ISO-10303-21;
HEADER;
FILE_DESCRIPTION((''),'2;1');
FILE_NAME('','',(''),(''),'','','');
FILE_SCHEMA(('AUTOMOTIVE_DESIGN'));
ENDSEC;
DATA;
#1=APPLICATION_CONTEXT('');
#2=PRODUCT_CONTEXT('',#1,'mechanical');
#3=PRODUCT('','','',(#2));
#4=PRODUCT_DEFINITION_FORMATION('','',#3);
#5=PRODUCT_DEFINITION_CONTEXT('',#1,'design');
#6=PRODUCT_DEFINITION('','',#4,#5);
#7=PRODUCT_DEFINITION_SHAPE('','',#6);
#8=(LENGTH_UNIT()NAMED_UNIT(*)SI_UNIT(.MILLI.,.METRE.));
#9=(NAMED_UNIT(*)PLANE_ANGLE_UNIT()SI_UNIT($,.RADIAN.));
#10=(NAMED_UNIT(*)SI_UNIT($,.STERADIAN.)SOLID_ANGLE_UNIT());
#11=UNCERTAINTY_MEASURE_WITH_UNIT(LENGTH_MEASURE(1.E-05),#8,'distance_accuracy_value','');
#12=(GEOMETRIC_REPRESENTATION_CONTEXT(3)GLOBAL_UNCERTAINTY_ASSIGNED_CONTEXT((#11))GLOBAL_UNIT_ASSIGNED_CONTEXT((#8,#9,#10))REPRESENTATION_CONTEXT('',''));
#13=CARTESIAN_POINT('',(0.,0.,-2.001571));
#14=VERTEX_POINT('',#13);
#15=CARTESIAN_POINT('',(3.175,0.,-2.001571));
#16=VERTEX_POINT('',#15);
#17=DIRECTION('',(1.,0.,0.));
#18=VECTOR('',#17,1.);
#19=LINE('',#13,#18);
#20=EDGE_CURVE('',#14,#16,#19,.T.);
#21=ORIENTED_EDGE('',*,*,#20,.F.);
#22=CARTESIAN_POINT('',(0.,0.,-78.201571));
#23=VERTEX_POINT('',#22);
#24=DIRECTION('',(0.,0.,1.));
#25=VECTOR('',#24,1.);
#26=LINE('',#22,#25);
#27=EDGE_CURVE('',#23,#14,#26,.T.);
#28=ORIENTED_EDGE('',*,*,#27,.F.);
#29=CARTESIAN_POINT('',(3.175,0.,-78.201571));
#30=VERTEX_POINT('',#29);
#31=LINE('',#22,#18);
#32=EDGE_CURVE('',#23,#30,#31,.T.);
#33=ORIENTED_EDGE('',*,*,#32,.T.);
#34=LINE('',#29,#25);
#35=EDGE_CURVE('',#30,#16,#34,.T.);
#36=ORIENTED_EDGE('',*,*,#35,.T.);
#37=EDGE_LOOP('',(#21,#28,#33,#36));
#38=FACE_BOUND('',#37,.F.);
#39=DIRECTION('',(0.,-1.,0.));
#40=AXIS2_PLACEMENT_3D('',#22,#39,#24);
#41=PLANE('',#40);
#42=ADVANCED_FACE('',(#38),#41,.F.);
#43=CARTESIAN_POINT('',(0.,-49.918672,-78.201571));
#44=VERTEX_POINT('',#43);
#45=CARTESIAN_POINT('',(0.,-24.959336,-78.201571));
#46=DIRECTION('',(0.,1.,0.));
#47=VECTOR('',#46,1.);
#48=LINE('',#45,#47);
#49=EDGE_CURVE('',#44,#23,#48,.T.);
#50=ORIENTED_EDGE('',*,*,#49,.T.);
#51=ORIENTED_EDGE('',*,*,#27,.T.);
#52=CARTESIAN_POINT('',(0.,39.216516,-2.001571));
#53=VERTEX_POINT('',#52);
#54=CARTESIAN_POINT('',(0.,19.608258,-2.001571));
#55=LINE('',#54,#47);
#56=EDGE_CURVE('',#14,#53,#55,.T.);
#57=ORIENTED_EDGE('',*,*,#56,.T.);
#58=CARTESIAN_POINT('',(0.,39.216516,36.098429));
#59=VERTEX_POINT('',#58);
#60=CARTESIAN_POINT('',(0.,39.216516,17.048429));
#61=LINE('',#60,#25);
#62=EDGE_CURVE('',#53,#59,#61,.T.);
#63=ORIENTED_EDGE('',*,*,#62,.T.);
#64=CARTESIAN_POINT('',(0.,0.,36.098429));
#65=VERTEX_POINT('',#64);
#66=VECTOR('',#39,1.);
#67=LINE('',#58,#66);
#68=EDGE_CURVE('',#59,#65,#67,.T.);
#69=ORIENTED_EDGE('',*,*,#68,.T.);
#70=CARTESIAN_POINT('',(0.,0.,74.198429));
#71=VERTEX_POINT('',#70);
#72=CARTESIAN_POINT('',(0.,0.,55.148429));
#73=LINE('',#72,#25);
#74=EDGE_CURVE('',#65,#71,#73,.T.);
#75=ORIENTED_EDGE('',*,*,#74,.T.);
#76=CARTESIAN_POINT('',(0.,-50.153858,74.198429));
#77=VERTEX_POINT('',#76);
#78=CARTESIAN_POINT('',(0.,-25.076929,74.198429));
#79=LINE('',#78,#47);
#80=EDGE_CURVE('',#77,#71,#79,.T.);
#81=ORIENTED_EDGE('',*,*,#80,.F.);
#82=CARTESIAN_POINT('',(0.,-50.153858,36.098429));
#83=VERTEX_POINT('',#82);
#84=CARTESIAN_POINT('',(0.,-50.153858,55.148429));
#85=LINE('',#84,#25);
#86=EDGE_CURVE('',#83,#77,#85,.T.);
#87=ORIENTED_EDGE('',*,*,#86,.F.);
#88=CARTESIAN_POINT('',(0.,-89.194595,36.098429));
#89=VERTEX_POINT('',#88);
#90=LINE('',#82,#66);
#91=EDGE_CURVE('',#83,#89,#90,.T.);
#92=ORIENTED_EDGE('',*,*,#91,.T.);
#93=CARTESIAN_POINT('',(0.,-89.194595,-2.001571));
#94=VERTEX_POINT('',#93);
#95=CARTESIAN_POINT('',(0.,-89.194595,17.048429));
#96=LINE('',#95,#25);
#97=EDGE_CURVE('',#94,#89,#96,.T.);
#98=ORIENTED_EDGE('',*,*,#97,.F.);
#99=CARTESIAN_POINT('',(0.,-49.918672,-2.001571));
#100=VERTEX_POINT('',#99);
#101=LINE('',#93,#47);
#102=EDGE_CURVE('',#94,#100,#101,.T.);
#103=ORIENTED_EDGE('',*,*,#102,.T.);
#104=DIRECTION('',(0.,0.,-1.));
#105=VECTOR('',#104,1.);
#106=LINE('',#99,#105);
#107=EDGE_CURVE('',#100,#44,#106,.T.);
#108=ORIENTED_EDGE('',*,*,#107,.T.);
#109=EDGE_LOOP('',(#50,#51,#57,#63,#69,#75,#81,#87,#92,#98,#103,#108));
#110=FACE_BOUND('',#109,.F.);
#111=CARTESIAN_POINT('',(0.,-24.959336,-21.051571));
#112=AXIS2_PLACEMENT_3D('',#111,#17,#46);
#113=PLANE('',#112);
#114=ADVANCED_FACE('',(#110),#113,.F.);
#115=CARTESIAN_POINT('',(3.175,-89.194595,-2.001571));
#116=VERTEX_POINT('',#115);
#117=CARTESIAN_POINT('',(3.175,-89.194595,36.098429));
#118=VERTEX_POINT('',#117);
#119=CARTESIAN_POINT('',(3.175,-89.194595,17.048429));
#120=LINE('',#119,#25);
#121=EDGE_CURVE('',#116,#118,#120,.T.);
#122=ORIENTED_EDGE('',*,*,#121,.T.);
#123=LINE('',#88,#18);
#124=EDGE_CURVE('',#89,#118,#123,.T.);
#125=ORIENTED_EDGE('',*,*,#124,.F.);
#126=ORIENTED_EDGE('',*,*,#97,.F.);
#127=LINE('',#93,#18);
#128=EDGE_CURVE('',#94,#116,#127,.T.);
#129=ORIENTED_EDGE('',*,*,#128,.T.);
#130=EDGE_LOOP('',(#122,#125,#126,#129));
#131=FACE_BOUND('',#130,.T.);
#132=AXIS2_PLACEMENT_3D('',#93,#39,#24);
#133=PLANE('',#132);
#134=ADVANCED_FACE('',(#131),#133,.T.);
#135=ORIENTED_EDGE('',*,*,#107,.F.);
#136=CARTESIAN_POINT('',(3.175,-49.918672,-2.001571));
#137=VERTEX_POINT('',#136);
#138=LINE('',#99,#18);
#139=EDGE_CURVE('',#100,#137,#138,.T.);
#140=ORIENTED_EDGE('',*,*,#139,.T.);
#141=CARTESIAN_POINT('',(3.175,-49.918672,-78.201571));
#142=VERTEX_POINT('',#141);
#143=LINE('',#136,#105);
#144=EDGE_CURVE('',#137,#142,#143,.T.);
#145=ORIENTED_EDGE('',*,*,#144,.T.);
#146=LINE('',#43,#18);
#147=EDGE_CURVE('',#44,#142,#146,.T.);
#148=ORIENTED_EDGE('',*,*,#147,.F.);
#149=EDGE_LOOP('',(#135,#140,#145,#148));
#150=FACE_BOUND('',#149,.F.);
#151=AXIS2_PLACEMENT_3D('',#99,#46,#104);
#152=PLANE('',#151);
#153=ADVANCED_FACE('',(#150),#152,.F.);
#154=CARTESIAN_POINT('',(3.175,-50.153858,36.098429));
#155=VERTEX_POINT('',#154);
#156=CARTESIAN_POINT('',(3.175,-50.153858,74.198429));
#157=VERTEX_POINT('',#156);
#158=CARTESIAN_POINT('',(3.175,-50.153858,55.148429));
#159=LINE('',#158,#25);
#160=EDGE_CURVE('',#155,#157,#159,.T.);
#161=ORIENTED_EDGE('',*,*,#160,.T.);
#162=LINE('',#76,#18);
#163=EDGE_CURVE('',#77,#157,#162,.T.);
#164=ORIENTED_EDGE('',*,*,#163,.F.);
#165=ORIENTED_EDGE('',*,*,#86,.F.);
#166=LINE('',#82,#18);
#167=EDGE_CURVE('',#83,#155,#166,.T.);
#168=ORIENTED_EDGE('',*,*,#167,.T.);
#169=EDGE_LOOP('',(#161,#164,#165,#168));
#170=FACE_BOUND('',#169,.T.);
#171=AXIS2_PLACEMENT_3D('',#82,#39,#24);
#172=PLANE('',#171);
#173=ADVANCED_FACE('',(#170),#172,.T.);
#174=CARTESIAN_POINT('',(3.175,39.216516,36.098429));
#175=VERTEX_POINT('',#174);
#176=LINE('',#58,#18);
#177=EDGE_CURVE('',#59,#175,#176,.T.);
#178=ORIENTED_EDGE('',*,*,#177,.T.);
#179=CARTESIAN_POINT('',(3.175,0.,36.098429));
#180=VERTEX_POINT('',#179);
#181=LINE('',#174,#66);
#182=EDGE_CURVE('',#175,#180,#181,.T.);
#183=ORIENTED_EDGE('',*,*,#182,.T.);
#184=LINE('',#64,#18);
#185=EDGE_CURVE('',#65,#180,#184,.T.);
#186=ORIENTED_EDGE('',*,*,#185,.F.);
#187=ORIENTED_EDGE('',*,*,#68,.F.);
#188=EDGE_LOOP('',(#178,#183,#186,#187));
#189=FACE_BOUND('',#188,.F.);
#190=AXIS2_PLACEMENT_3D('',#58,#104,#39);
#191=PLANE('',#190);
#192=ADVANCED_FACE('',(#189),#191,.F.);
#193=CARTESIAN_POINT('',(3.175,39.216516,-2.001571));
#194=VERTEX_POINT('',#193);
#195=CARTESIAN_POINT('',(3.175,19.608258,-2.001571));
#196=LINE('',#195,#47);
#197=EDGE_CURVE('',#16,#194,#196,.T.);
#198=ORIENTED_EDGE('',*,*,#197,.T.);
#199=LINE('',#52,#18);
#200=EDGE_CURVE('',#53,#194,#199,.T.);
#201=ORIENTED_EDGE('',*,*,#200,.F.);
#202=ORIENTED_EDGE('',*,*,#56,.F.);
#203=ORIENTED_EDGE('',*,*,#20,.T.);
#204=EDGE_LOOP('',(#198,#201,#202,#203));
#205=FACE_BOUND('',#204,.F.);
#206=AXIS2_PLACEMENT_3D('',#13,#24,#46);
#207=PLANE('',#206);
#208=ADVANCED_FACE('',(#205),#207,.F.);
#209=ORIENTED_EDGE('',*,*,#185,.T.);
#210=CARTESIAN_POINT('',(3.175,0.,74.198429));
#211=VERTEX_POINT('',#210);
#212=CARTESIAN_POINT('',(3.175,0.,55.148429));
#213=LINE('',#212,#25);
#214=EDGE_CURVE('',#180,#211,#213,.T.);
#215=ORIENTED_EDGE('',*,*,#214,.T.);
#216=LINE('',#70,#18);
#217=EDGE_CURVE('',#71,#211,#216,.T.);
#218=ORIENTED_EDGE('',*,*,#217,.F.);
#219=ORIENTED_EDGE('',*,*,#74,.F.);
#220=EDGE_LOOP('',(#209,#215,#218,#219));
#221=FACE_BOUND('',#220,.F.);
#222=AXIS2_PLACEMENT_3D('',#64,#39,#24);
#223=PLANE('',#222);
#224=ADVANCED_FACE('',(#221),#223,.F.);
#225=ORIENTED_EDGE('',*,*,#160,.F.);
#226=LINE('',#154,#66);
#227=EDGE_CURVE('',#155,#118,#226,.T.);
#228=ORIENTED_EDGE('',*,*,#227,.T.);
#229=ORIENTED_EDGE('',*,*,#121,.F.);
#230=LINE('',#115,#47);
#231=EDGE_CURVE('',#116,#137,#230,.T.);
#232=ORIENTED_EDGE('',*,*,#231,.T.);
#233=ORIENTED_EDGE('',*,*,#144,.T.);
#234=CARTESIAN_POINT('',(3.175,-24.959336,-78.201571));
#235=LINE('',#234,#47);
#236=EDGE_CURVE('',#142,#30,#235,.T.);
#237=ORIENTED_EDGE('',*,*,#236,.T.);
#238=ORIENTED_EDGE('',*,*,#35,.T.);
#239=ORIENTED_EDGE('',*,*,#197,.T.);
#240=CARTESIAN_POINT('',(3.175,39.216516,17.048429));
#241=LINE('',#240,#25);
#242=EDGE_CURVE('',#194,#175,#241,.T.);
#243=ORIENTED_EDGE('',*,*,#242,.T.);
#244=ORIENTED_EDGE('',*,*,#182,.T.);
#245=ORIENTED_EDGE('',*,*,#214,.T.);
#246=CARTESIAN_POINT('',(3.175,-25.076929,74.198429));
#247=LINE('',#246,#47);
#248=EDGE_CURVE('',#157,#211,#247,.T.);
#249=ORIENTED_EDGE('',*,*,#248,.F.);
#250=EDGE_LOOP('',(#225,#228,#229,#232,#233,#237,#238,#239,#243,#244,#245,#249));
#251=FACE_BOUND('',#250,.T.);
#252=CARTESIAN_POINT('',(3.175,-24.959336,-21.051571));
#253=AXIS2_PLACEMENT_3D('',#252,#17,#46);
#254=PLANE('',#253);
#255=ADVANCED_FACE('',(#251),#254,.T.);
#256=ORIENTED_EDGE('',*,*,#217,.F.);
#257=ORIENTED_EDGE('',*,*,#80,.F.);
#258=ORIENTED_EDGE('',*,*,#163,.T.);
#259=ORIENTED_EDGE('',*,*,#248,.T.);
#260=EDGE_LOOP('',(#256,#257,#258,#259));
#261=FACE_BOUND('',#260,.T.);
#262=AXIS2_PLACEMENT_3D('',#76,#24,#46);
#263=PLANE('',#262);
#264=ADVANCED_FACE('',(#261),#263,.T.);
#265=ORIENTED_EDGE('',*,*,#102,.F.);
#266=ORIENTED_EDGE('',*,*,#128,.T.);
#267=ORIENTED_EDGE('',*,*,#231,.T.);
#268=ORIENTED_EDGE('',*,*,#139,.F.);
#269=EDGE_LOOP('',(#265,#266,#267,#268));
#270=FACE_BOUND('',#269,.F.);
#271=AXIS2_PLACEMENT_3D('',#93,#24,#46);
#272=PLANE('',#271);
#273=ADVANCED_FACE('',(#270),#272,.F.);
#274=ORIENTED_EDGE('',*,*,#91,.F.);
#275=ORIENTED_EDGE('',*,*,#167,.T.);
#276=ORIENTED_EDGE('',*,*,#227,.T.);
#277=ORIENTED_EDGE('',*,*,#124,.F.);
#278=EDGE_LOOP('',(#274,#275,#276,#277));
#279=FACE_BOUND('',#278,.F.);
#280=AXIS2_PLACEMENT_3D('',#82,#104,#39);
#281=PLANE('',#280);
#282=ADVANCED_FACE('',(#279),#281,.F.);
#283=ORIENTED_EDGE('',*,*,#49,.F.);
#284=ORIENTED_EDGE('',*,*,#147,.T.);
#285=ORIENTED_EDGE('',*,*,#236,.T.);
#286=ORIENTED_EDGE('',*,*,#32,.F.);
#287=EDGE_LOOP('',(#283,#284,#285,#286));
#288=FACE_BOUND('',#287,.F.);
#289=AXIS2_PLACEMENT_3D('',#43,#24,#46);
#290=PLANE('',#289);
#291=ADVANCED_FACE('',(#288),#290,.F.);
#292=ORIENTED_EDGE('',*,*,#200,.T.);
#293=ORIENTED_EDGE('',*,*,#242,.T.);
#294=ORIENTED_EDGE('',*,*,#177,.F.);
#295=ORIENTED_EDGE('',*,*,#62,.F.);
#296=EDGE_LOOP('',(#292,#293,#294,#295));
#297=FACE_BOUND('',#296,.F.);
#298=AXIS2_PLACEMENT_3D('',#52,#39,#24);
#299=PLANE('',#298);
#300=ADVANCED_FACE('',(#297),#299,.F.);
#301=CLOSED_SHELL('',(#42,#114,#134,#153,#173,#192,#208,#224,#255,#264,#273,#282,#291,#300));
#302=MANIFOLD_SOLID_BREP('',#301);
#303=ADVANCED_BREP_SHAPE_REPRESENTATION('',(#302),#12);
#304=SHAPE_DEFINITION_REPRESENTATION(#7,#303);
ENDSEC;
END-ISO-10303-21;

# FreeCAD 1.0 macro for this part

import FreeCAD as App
import Part
import Sketcher
from FreeCAD import Vector
Q = App.Units.Quantity

doc = App.newDocument("Part")
params = doc.addObject("Spreadsheet::Sheet", "Params")
for row, (alias, value) in enumerate([
    ("sketch1_height", "3 in"),
    ("sketch1_height2", "1.5 in"),
    ("pad1_length", "0.125 in"),
], start=1):
    params.set(f"A{row}", alias)
    params.set(f"B{row}", "=" + value)
    params.setAlias(f"B{row}", alias)

body = doc.addObject("PartDesign::Body", "Body")

sketch1 = body.newObject("Sketcher::SketchObject", "Sketch")
sketch1.AttachmentSupport = (doc.getObject("YZ_Plane"), [""])
sketch1.MapMode = "FlatFace"
sketch1.addGeometry([
    Part.LineSegment(Vector(-49.918672, -2.001571, 0), Vector(-49.918672, -78.201571, 0)),
    Part.LineSegment(Vector(-49.918672, -78.201571, 0), Vector(0, -78.201571, 0)),
    Part.LineSegment(Vector(0, -78.201571, 0), Vector(0, -2.001571, 0)),
    Part.LineSegment(Vector(0, -2.001571, 0), Vector(39.216516, -2.001571, 0)),
    Part.LineSegment(Vector(39.216516, -2.001571, 0), Vector(39.216516, 36.098429, 0)),
    Part.LineSegment(Vector(39.216516, 36.098429, 0), Vector(0, 36.098429, 0)),
    Part.LineSegment(Vector(0, 36.098429, 0), Vector(0, 74.198429, 0)),
    Part.LineSegment(Vector(0, 74.198429, 0), Vector(-50.153858, 74.198429, 0)),
    Part.LineSegment(Vector(-50.153858, 74.198429, 0), Vector(-50.153858, 36.098429, 0)),
    Part.LineSegment(Vector(-50.153858, 36.098429, 0), Vector(-89.194595, 36.098429, 0)),
    Part.LineSegment(Vector(-89.194595, 36.098429, 0), Vector(-89.194595, -2.001571, 0)),
    Part.LineSegment(Vector(-89.194595, -2.001571, 0), Vector(-49.918672, -2.001571, 0)),
], False)
sketch1.addConstraint([
    Sketcher.Constraint("Coincident", 0, 2, 1, 1),
    Sketcher.Constraint("Coincident", 1, 2, 2, 1),
    Sketcher.Constraint("Coincident", 2, 2, 3, 1),
    Sketcher.Constraint("Coincident", 3, 2, 4, 1),
    Sketcher.Constraint("Coincident", 4, 2, 5, 1),
    Sketcher.Constraint("Coincident", 5, 2, 6, 1),
    Sketcher.Constraint("Coincident", 6, 2, 7, 1),
    Sketcher.Constraint("Coincident", 7, 2, 8, 1),
    Sketcher.Constraint("Coincident", 8, 2, 9, 1),
    Sketcher.Constraint("Coincident", 9, 2, 10, 1),
    Sketcher.Constraint("Coincident", 10, 2, 11, 1),
    Sketcher.Constraint("Coincident", 11, 2, 0, 1),
    Sketcher.Constraint("Vertical", 0),
    Sketcher.Constraint("Horizontal", 1),
    Sketcher.Constraint("Vertical", 2),
    Sketcher.Constraint("Horizontal", 3),
    Sketcher.Constraint("Vertical", 4),
    Sketcher.Constraint("Horizontal", 5),
    Sketcher.Constraint("Vertical", 6),
    Sketcher.Constraint("Horizontal", 7),
    Sketcher.Constraint("Vertical", 8),
    Sketcher.Constraint("Horizontal", 9),
    Sketcher.Constraint("Vertical", 10),
    Sketcher.Constraint("Horizontal", 11),
    Sketcher.Constraint("PointOnObject", 1, 2, -2),
    Sketcher.Constraint("PointOnObject", 5, 2, -2),
    Sketcher.Constraint("Horizontal", 5, 2, 8, 2),
    Sketcher.Constraint("Horizontal", 3, 2, 10, 2),
    Sketcher.Constraint("Equal", 4, 6),
    Sketcher.Constraint("DistanceY", 0, 2, 0, 1, Q("3 in")),
    Sketcher.Constraint("DistanceY", 4, 1, 4, 2, Q("1.5 in")),
    Sketcher.Constraint("DistanceX", 7, 2, 7, 1, Q("50.153859 mm")),
    Sketcher.Constraint("DistanceX", 1, 1, 1, 2, Q("49.918672 mm")),
    Sketcher.Constraint("DistanceX", 3, 1, 3, 2, Q("39.216516 mm")),
    Sketcher.Constraint("DistanceX", 9, 2, 9, 1, Q("39.040737 mm")),
    Sketcher.Constraint("DistanceY", 0, 2, -1, 1, Q("78.201571 mm")),
])
sketch1.setExpression("Constraints[29]", "Params.sketch1_height")
sketch1.setExpression("Constraints[30]", "Params.sketch1_height2")
pad1 = body.newObject("PartDesign::Pad", "Pad")
pad1.Profile = sketch1
pad1.setExpression("Length", "Params.pad1_length")

doc.recompute()
